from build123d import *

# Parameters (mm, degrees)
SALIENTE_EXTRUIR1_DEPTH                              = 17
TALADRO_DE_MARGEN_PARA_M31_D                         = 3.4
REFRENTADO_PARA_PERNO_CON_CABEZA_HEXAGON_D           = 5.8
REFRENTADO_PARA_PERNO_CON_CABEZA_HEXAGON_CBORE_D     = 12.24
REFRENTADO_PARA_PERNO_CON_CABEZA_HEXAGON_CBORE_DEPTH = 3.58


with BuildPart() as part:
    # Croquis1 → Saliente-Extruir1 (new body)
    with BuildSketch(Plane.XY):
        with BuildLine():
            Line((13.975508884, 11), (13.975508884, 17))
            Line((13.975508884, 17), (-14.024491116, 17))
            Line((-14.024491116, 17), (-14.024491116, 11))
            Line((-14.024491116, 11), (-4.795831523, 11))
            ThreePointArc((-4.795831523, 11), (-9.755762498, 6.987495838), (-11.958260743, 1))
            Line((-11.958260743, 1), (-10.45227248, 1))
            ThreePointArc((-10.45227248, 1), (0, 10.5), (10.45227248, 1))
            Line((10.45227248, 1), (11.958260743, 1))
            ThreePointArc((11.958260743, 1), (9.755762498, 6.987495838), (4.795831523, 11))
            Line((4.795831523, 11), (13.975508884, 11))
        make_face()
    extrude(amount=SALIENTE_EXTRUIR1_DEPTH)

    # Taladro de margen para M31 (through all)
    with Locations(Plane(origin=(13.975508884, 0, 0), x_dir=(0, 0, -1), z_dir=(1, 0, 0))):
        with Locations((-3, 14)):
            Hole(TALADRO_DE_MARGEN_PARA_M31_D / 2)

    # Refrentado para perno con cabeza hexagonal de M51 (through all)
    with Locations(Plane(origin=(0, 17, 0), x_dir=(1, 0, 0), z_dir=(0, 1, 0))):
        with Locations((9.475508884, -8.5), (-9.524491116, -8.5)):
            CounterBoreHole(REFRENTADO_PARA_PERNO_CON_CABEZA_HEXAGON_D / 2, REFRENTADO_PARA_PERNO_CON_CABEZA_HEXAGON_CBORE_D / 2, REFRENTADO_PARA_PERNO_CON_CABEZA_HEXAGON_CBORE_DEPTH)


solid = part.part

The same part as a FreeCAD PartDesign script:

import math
import FreeCAD as App
import Part
import Sketcher

V = App.Vector

doc = App.newDocument("Part")
params = doc.addObject("Spreadsheet::Sheet", "Params")
for row, (alias, value) in enumerate([
    ("sketch1_radius", "12 mm"),
    ("sketch1_radius2", "10.5 mm"),
    ("sketch1_width", "28 mm"),
    ("sketch1_height", "6 mm"),
    ("pad1_length", "17 mm"),
    ("sketch2_diameter", "3.4 mm"),
    ("hole_diameter", "3.4 mm"),
    ("sketch3_diameter", "5.8 mm"),
    ("hole2_diameter", "5.8 mm"),
    ("hole2_cbore_diameter", "12.24 mm"),
    ("hole2_cbore_depth", "3.58 mm"),
], start=1):
    params.set(f"A{row}", alias)
    params.set(f"B{row}", "=" + value)
    params.setAlias(f"B{row}", alias)

body = doc.addObject("PartDesign::Body", "Body")

# Sketch on XY plane
sketch1 = body.newObject("Sketcher::SketchObject", "Sketch")
sketch1.AttachmentSupport = (doc.getObject("XY_Plane"), [""])
sketch1.MapMode = "FlatFace"
sketch1.addGeometry(Part.LineSegment(V(13.975509, 11, 0), V(13.975509, 17, 0)), False)
sketch1.addGeometry(Part.LineSegment(V(13.975509, 17, 0), V(-14.024491, 17, 0)), False)
sketch1.addGeometry(Part.LineSegment(V(-14.024491, 17, 0), V(-14.024491, 11, 0)), False)
sketch1.addGeometry(Part.LineSegment(V(-14.024491, 11, 0), V(-4.795832, 11, 0)), False)
sketch1.addGeometry(Part.ArcOfCircle(Part.Circle(V(0, 0, 0), V(0, 0, 1), 12), math.radians(113.556464), math.radians(175.219808)), False)
sketch1.addGeometry(Part.LineSegment(V(-11.958261, 1, 0), V(-10.452272, 1, 0)), False)
sketch1.addGeometry(Part.ArcOfCircle(Part.Circle(V(0, 0, 0), V(0, 0, 1), 10.5), math.radians(5.465024), math.radians(174.534976)), False)
sketch1.addGeometry(Part.LineSegment(V(10.452272, 1, 0), V(11.958261, 1, 0)), False)
sketch1.addGeometry(Part.ArcOfCircle(Part.Circle(V(0, 0, 0), V(0, 0, 1), 12), math.radians(4.780192), math.radians(66.443536)), False)
sketch1.addGeometry(Part.LineSegment(V(4.795832, 11, 0), V(13.975509, 11, 0)), False)
sketch1.addConstraint(Sketcher.Constraint("Coincident", 0, 2, 1, 1))
sketch1.addConstraint(Sketcher.Constraint("Coincident", 1, 2, 2, 1))
sketch1.addConstraint(Sketcher.Constraint("Coincident", 2, 2, 3, 1))
sketch1.addConstraint(Sketcher.Constraint("Coincident", 3, 2, 4, 1))
sketch1.addConstraint(Sketcher.Constraint("Coincident", 4, 2, 5, 1))
sketch1.addConstraint(Sketcher.Constraint("Coincident", 5, 2, 6, 2))
sketch1.addConstraint(Sketcher.Constraint("Coincident", 6, 1, 7, 1))
sketch1.addConstraint(Sketcher.Constraint("Coincident", 7, 2, 8, 1))
sketch1.addConstraint(Sketcher.Constraint("Coincident", 8, 2, 9, 1))
sketch1.addConstraint(Sketcher.Constraint("Coincident", 9, 2, 0, 1))
sketch1.addConstraint(Sketcher.Constraint("Vertical", 0))
sketch1.addConstraint(Sketcher.Constraint("Horizontal", 1))
sketch1.addConstraint(Sketcher.Constraint("Vertical", 2))
sketch1.addConstraint(Sketcher.Constraint("Horizontal", 3))
sketch1.addConstraint(Sketcher.Constraint("Horizontal", 5))
sketch1.addConstraint(Sketcher.Constraint("Horizontal", 7))
sketch1.addConstraint(Sketcher.Constraint("Horizontal", 9))
sketch1.addConstraint(Sketcher.Constraint("Coincident", 4, 3, -1, 1))
sketch1.addConstraint(Sketcher.Constraint("Coincident", 6, 3, -1, 1))
sketch1.addConstraint(Sketcher.Constraint("Coincident", 8, 3, -1, 1))
sketch1.addConstraint(Sketcher.Constraint("Equal", 4, 8))
sketch1.addConstraint(Sketcher.Constraint("Horizontal", 5, 2, 6, 1))
sketch1.addConstraint(Sketcher.Constraint("Horizontal", 3, 2, 8, 2))
sketch1.addConstraint(Sketcher.Constraint("Radius", 4, 12.0))
sketch1.addConstraint(Sketcher.Constraint("Radius", 6, 10.5))
sketch1.addConstraint(Sketcher.Constraint("DistanceX", 1, 2, 1, 1, 28.0))
sketch1.addConstraint(Sketcher.Constraint("DistanceY", 0, 1, 0, 2, 6.0))
sketch1.addConstraint(Sketcher.Constraint("DistanceY", -1, 1, 0, 2, 17.0))
sketch1.addConstraint(Sketcher.Constraint("DistanceY", -1, 1, 4, 2, 1.0))
sketch1.addConstraint(Sketcher.Constraint("DistanceX", 3, 1, 3, 2, 9.22866))
sketch1.setExpression("Constraints[23]", "Params.sketch1_radius")
sketch1.setExpression("Constraints[24]", "Params.sketch1_radius2")
sketch1.setExpression("Constraints[25]", "Params.sketch1_width")
sketch1.setExpression("Constraints[26]", "Params.sketch1_height")
pad1 = body.newObject("PartDesign::Pad", "Pad")
pad1.Profile = sketch1
pad1.setExpression("Length", "Params.pad1_length")

# Sketch on YZ plane
sketch2 = body.newObject("Sketcher::SketchObject", "Sketch001")
sketch2.AttachmentSupport = (doc.getObject("YZ_Plane"), [""])
sketch2.MapMode = "FlatFace"
sketch2.AttachmentOffset = App.Placement(V(0, 0, 13.975509), App.Rotation())
sketch2.addGeometry(Part.Circle(V(14, 3, 0), V(0, 0, 1), 1.7), False)
sketch2.addConstraint(Sketcher.Constraint("Diameter", 0, 3.4))
sketch2.addConstraint(Sketcher.Constraint("DistanceX", -1, 1, 0, 3, 14.0))
sketch2.addConstraint(Sketcher.Constraint("DistanceY", -1, 1, 0, 3, 3.0))
sketch2.setExpression("Constraints[0]", "Params.sketch2_diameter")
doc.recompute()
hole = body.newObject("PartDesign::Hole", "Hole")
hole.Profile = sketch2
hole.ThreadType = "None"
hole.setExpression("Diameter", "Params.hole_diameter")
hole.DepthType = "ThroughAll"

# Sketch on XZ plane
sketch3 = body.newObject("Sketcher::SketchObject", "Sketch002")
sketch3.AttachmentSupport = (doc.getObject("XZ_Plane"), [""])
sketch3.MapMode = "FlatFace"
sketch3.AttachmentOffset = App.Placement(V(0, 0, -17), App.Rotation())
sketch3.addGeometry(Part.Circle(V(9.475509, 8.5, 0), V(0, 0, 1), 2.9), False)
sketch3.addGeometry(Part.Circle(V(-9.524491, 8.5, 0), V(0, 0, 1), 2.9), False)
sketch3.addConstraint(Sketcher.Constraint("Equal", 0, 1))
sketch3.addConstraint(Sketcher.Constraint("Horizontal", 0, 3, 1, 3))
sketch3.addConstraint(Sketcher.Constraint("Diameter", 0, 5.8))
sketch3.addConstraint(Sketcher.Constraint("DistanceX", 1, 3, 0, 3, 19.0))
sketch3.addConstraint(Sketcher.Constraint("DistanceY", -1, 1, 0, 3, 8.5))
sketch3.addConstraint(Sketcher.Constraint("DistanceX", -1, 1, 0, 3, 9.475509))
sketch3.setExpression("Constraints[2]", "Params.sketch3_diameter")
doc.recompute()
hole2 = body.newObject("PartDesign::Hole", "Hole001")
hole2.Profile = sketch3
hole2.ThreadType = "None"
hole2.setExpression("Diameter", "Params.hole2_diameter")
hole2.DepthType = "ThroughAll"
hole2.HoleCutType = "Counterbore"
hole2.setExpression("HoleCutDiameter", "Params.hole2_cbore_diameter")
hole2.setExpression("HoleCutDepth", "Params.hole2_cbore_depth")
hole2.Reversed = True

doc.recompute()
